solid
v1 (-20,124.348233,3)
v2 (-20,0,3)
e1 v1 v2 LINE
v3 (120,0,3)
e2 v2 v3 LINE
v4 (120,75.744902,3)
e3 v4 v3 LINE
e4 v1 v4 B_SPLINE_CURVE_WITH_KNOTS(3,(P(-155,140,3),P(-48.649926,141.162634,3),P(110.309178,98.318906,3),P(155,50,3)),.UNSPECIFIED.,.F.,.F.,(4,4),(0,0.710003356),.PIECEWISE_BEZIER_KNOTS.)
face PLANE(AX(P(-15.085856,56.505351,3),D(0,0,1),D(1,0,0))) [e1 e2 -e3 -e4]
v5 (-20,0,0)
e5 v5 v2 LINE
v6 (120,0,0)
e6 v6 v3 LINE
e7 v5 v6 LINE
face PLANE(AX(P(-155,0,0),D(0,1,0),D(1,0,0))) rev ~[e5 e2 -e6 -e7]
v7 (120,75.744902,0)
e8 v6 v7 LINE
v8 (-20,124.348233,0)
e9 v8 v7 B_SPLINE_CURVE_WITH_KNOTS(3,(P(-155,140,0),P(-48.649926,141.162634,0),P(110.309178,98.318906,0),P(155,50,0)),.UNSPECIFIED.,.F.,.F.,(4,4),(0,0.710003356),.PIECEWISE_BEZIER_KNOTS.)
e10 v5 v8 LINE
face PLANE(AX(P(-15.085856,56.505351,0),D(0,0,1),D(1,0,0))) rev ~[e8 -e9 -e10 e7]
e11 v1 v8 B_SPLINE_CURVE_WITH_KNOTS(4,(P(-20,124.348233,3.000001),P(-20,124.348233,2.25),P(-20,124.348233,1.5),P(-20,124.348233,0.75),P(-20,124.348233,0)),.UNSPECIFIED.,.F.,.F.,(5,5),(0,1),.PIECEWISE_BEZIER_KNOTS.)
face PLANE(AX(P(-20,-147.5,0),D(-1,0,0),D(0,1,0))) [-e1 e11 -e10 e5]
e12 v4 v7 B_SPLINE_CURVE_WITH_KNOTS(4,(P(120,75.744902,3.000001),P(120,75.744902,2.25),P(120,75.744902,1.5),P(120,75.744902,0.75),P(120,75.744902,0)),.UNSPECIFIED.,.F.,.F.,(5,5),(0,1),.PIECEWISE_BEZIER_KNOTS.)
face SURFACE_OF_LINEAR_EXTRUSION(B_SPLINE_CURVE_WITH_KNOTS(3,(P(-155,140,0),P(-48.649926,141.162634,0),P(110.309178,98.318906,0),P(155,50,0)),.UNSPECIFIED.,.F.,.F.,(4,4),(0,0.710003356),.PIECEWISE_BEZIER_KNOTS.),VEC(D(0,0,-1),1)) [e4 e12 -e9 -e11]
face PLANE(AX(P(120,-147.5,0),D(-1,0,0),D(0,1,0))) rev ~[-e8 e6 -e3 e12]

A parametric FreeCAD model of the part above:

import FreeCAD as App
import Part
import Sketcher
Q = App.Units.Quantity


def add_polygon(sketch, points):
    """Adds a closed chain of lines whose ends are joined by coincident constraints."""
    first, n = sketch.GeometryCount, len(points)
    for a, b in zip(points, points[1:] + points[:1]):
        sketch.addGeometry(Part.LineSegment(App.Vector(*a, 0), App.Vector(*b, 0)), False)
    for i in range(n):
        sketch.addConstraint(Sketcher.Constraint("Coincident", first + i, 2, first + (i + 1) % n, 1))

doc = App.newDocument("Part")
body = doc.addObject("PartDesign::Body", "Body")

# Sketch on XY plane
sketch1 = body.newObject("Sketcher::SketchObject", "Sketch")
sketch1.AttachmentSupport = (doc.getObject("XY_Plane"), [""])
sketch1.MapMode = "FlatFace"
sketch1.addGeometry(Part.BSplineCurve([App.Vector(-155, 140, 0), App.Vector(-48.649926, 141.162634, 0), App.Vector(110.309178, 98.318906, 0), App.Vector(155, 50, 0)], [4, 4], [0, 0.710003356], False, 3, [1, 1, 1, 1], False), False)
sketch1.addGeometry(Part.LineSegment(App.Vector(-155, 140, 0), App.Vector(-155, 0, 0)), False)
sketch1.addGeometry(Part.LineSegment(App.Vector(-155, 0, 0), App.Vector(175, 0, 0)), False)
sketch1.addGeometry(Part.BSplineCurve([App.Vector(155, 50, 0), App.Vector(173.2537, 30.26443, 0), App.Vector(172.444418, 9.615456, 0), App.Vector(175, 0, 0)], [4, 4], [0.710003356, 1], False, 3, [1, 1, 1, 1], False), False)
sketch1.addConstraint(Sketcher.Constraint("Block", 0))
sketch1.addConstraint(Sketcher.Constraint("Block", 3))
sketch1.addConstraint(Sketcher.Constraint("Coincident", 0, 1, 1, 1))
sketch1.addConstraint(Sketcher.Constraint("Coincident", 1, 2, 2, 1))
sketch1.addConstraint(Sketcher.Constraint("Coincident", 2, 2, 3, 2))
sketch1.addConstraint(Sketcher.Constraint("Vertical", 1))
sketch1.addConstraint(Sketcher.Constraint("Horizontal", 2))
pad1 = body.newObject("PartDesign::Pad", "Pad")
pad1.Profile = sketch1
pad1.Length = 3
body2 = doc.addObject("PartDesign::Body", "Body001")

# Sketch on XY plane
sketch2 = body2.newObject("Sketcher::SketchObject", "Sketch001")
sketch2.AttachmentSupport = (doc.getObject("XY_Plane001"), [""])
sketch2.MapMode = "FlatFace"
add_polygon(sketch2, [(-450, 150), (-450, -150), (450, -150), (450, 150)])  # lines 0-3
add_polygon(sketch2, [(70, -148), (-70, -148), (-70, 148), (70, 148)])  # lines 4-7
sketch2.addConstraint(Sketcher.Constraint("Vertical", 0))
sketch2.addConstraint(Sketcher.Constraint("Horizontal", 1))
sketch2.addConstraint(Sketcher.Constraint("Vertical", 2))
sketch2.addConstraint(Sketcher.Constraint("Horizontal", 3))
sketch2.addConstraint(Sketcher.Constraint("Horizontal", 4))
sketch2.addConstraint(Sketcher.Constraint("Vertical", 5))
sketch2.addConstraint(Sketcher.Constraint("Horizontal", 6))
sketch2.addConstraint(Sketcher.Constraint("Vertical", 7))
sketch2.addConstraint(Sketcher.Constraint("Symmetric", 0, 2, 2, 2, -1, 1))
sketch2.addConstraint(Sketcher.Constraint("Symmetric", 4, 2, 6, 2, -1, 1))
sketch2.addConstraint(Sketcher.Constraint("DistanceX", 1, 1, 1, 2, Q("900 mm")))
sketch2.addConstraint(Sketcher.Constraint("DistanceX", 4, 2, 4, 1, Q("140 mm")))
sketch2.addConstraint(Sketcher.Constraint("DistanceY", 0, 2, 0, 1, Q("300 mm")))
sketch2.addConstraint(Sketcher.Constraint("DistanceY", 5, 1, 5, 2, Q("295 mm")))
pad2 = body2.newObject("PartDesign::Pad", "Pad001")
pad2.Profile = sketch2
pad2.Length = 25
body3 = doc.addObject("PartDesign::Body", "Body002")
doc.recompute()

body2.Placement = App.Placement(App.Vector(50, 0, 0), App.Rotation(App.Vector(0, 0, 1), 0))
boolean = body3.newObject("PartDesign::Boolean", "Boolean")
boolean.Type = "Fuse"
boolean.addObjects([body2])
doc.recompute()

boolean2 = body.newObject("PartDesign::Boolean", "Boolean001")
boolean2.Type = "Cut"
boolean2.addObjects([body3])

doc.recompute()
